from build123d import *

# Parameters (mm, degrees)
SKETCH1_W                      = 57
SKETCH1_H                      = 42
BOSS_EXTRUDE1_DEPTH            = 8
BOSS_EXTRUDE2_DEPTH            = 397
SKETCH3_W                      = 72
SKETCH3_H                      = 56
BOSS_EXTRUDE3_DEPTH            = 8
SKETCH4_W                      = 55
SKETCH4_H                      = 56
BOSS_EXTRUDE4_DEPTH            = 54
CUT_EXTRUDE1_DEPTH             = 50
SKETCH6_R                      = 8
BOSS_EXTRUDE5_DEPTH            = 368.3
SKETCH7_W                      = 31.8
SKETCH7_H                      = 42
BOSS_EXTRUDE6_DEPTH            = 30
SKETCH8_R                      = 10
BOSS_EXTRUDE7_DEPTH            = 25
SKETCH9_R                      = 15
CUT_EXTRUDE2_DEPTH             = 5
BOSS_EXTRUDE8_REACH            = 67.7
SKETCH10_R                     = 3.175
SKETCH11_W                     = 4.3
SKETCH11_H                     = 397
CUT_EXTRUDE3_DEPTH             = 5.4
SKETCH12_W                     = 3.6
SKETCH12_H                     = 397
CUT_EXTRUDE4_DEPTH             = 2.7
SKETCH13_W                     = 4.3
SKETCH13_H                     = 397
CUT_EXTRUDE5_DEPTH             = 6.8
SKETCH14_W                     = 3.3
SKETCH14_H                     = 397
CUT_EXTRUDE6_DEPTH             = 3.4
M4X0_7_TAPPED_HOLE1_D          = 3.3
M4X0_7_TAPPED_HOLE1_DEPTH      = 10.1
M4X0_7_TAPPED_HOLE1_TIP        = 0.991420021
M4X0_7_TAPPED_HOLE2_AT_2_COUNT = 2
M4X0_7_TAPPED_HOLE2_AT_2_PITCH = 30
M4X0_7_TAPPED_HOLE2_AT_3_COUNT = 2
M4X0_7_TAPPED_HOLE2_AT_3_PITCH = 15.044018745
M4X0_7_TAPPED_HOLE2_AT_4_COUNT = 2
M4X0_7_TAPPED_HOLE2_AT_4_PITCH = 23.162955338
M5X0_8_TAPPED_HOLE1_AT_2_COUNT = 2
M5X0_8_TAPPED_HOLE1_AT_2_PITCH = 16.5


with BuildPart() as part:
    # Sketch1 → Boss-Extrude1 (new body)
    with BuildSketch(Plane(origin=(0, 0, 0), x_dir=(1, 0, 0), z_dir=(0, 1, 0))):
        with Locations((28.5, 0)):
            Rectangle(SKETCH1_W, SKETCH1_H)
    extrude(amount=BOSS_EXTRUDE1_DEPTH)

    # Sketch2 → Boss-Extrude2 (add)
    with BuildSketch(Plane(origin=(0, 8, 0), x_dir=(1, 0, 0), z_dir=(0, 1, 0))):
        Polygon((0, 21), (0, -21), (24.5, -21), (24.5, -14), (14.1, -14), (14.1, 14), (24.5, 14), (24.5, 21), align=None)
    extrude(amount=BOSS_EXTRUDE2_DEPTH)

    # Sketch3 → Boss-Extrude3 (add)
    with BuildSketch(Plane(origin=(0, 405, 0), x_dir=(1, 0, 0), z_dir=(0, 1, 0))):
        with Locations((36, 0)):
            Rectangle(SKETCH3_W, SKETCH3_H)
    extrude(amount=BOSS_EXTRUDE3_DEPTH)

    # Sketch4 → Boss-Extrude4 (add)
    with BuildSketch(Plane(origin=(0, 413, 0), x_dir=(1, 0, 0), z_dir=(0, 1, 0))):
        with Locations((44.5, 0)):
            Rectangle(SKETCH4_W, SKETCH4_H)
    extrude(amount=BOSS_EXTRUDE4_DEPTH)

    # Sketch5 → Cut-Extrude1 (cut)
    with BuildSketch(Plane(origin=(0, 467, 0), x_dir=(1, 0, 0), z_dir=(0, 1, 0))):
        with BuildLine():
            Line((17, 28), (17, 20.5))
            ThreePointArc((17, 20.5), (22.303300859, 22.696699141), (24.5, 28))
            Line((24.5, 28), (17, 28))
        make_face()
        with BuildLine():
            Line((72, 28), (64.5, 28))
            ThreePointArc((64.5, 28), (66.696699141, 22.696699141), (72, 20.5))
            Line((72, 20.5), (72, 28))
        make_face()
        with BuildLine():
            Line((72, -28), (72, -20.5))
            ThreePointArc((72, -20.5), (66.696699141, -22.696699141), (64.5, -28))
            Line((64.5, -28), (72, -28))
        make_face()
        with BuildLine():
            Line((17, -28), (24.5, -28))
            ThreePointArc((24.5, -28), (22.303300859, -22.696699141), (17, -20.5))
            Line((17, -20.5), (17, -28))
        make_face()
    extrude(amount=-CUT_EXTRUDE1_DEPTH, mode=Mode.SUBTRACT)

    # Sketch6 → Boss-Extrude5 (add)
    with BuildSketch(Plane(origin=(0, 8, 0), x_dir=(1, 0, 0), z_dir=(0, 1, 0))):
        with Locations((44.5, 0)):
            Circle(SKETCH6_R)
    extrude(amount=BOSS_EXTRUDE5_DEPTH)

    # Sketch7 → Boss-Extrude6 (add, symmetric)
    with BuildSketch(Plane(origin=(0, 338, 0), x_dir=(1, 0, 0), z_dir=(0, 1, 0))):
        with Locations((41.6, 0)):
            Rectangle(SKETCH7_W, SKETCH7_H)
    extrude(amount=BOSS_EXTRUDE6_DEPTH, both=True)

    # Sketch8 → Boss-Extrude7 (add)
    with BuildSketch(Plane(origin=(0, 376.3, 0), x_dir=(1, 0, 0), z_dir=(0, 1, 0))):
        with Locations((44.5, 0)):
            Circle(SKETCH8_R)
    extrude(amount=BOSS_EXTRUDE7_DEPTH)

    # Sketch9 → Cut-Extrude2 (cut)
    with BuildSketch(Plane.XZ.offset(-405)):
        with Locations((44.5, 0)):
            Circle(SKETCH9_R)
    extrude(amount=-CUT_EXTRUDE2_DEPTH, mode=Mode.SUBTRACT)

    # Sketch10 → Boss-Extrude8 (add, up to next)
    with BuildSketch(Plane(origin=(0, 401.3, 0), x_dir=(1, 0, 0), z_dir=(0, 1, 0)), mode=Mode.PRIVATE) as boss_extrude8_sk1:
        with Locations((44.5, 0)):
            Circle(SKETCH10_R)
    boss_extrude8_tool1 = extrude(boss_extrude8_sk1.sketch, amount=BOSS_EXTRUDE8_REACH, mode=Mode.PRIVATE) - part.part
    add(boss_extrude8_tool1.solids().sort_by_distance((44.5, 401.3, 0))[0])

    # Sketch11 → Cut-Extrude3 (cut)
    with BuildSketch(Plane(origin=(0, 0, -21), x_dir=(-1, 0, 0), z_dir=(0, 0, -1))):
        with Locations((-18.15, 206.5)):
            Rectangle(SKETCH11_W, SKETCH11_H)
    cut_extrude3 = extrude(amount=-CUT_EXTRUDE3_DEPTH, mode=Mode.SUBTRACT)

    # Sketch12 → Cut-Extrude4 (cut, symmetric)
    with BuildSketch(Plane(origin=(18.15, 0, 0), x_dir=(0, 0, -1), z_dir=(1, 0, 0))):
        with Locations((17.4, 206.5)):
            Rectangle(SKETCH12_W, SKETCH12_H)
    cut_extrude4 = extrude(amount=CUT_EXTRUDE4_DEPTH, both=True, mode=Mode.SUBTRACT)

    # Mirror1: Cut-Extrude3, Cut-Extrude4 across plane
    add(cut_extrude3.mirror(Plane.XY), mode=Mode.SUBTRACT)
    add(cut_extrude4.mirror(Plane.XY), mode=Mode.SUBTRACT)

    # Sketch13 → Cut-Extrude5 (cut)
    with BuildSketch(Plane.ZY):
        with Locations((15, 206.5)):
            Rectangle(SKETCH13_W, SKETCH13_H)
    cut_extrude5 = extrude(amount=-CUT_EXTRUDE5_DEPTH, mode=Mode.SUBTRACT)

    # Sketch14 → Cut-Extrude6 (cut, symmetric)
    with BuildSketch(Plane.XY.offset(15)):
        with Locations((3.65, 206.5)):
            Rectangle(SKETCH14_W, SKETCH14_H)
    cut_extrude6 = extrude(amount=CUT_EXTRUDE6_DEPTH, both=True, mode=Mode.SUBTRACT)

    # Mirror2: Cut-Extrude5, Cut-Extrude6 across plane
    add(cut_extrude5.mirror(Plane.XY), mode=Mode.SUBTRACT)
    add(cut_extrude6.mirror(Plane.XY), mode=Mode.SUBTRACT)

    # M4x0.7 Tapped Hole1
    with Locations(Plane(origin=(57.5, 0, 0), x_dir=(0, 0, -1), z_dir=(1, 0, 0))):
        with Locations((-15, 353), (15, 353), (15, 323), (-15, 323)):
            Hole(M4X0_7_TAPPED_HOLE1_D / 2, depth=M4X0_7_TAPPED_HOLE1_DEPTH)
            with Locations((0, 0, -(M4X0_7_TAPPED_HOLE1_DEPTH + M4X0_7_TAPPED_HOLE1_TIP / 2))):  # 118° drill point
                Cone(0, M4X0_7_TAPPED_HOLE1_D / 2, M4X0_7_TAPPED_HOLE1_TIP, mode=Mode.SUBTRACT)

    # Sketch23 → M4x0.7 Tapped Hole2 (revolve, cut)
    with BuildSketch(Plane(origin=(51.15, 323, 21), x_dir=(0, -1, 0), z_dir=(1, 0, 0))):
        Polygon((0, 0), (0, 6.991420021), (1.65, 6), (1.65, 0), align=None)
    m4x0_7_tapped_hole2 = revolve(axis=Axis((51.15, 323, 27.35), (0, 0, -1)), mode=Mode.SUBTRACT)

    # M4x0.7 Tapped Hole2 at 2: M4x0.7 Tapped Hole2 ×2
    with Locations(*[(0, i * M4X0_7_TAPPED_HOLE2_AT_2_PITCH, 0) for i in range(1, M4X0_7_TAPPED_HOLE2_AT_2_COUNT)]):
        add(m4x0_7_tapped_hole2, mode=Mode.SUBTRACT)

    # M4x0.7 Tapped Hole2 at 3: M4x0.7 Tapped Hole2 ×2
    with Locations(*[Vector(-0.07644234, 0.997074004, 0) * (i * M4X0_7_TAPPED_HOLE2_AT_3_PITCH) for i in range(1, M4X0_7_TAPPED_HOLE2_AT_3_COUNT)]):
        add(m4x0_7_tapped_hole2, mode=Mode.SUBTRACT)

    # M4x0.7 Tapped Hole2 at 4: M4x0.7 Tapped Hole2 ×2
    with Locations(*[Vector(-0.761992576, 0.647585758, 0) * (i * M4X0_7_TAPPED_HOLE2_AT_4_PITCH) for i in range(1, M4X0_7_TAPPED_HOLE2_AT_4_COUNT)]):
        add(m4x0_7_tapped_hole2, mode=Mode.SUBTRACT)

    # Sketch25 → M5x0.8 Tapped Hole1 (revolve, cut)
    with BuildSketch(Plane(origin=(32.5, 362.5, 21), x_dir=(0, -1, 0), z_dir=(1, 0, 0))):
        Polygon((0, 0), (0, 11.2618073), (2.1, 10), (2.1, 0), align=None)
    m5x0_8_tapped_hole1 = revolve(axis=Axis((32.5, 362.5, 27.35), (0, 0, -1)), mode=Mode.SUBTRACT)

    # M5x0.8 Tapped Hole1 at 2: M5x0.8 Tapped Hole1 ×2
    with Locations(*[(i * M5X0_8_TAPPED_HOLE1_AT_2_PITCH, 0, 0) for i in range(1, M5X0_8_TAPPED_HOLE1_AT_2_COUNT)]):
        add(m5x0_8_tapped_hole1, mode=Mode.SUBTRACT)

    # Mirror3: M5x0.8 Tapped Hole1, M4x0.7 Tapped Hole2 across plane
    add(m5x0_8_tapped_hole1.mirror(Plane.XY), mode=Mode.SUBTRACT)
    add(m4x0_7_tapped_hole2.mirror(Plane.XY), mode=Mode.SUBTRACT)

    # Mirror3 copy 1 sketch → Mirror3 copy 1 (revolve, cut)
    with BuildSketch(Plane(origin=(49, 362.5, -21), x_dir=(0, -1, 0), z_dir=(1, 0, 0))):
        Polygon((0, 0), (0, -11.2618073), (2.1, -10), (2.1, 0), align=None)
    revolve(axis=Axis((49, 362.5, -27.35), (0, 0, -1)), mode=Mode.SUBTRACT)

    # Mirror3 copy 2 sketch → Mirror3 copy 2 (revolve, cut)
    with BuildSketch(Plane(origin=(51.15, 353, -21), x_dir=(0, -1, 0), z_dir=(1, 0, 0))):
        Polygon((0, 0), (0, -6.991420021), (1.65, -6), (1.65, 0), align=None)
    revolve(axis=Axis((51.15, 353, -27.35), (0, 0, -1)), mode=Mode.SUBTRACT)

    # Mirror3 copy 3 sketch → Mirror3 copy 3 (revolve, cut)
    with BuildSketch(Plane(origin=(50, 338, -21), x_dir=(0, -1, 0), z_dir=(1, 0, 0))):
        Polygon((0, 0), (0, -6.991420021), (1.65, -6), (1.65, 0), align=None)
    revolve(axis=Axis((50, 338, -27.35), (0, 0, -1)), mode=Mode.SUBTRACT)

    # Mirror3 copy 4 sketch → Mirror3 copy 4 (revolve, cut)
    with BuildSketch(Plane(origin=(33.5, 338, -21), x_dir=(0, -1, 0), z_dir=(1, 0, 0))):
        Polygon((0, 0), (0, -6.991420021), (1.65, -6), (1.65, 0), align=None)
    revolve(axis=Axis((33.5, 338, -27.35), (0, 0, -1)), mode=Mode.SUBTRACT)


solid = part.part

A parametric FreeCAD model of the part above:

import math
import FreeCAD as App
import Part
import Sketcher
from FreeCAD import Vector
Q = App.Units.Quantity


def add_polygon(sketch, points):
    """Adds a closed chain of lines whose ends are joined by coincident constraints."""
    first, n = sketch.GeometryCount, len(points)
    for a, b in zip(points, points[1:] + points[:1]):
        sketch.addGeometry(Part.LineSegment(App.Vector(*a, 0), App.Vector(*b, 0)), False)
    for i in range(n):
        sketch.addConstraint(Sketcher.Constraint("Coincident", first + i, 2, first + (i + 1) % n, 1))

doc = App.newDocument("Part")
body = doc.addObject("PartDesign::Body", "Body")

# Sketch on XZ plane
sketch1 = body.newObject("Sketcher::SketchObject", "Sketch")
sketch1.AttachmentSupport = (doc.getObject("XZ_Plane"), [""])
sketch1.MapMode = "FlatFace"
add_polygon(sketch1, [(0, -21), (0, 21), (57, 21), (57, -21)])  # lines 0-3
sketch1.addConstraint(Sketcher.Constraint("Vertical", 0))
sketch1.addConstraint(Sketcher.Constraint("Horizontal", 1))
sketch1.addConstraint(Sketcher.Constraint("Vertical", 2))
sketch1.addConstraint(Sketcher.Constraint("Horizontal", 3))
sketch1.addConstraint(Sketcher.Constraint("Symmetric", 0, 2, 3, 2, -1, 1))
sketch1.addConstraint(Sketcher.Constraint("DistanceX", 1, 1, 1, 2, Q("57 mm")))
sketch1.addConstraint(Sketcher.Constraint("DistanceY", 0, 1, 0, 2, Q("42 mm")))
pad1 = body.newObject("PartDesign::Pad", "Pad")
pad1.Profile = sketch1
pad1.Length = 8
pad1.Reversed = True

# Sketch on XZ plane
sketch2 = body.newObject("Sketcher::SketchObject", "Sketch001")
sketch2.AttachmentSupport = (doc.getObject("XZ_Plane"), [""])
sketch2.MapMode = "FlatFace"
sketch2.AttachmentOffset = App.Placement(Vector(0, 0, -8), App.Rotation())
add_polygon(sketch2, [(0, -21), (0, 21), (24.5, 21), (24.5, 14), (14.1, 14), (14.1, -14), (24.5, -14), (24.5, -21)])  # lines 0-7
sketch2.addConstraint(Sketcher.Constraint("Vertical", 0))
sketch2.addConstraint(Sketcher.Constraint("Horizontal", 1))
sketch2.addConstraint(Sketcher.Constraint("Vertical", 2))
sketch2.addConstraint(Sketcher.Constraint("Horizontal", 3))
sketch2.addConstraint(Sketcher.Constraint("Vertical", 4))
sketch2.addConstraint(Sketcher.Constraint("Horizontal", 5))
sketch2.addConstraint(Sketcher.Constraint("Vertical", 6))
sketch2.addConstraint(Sketcher.Constraint("Horizontal", 7))
sketch2.addConstraint(Sketcher.Constraint("Symmetric", 0, 2, 7, 2, -1, 1))
sketch2.addConstraint(Sketcher.Constraint("Symmetric", 2, 2, 5, 2, -1))
sketch2.addConstraint(Sketcher.Constraint("DistanceY", 0, 1, 0, 2, Q("42 mm")))
sketch2.addConstraint(Sketcher.Constraint("DistanceY", 2, 2, 2, 1, Q("7 mm")))
sketch2.addConstraint(Sketcher.Constraint("DistanceX", 1, 1, 1, 2, Q("24.5 mm")))
sketch2.addConstraint(Sketcher.Constraint("DistanceX", 3, 2, 3, 1, Q("10.4 mm")))
pad2 = body.newObject("PartDesign::Pad", "Pad001")
pad2.Profile = sketch2
pad2.Length = 397
pad2.Reversed = True

# Sketch on XZ plane
sketch3 = body.newObject("Sketcher::SketchObject", "Sketch002")
sketch3.AttachmentSupport = (doc.getObject("XZ_Plane"), [""])
sketch3.MapMode = "FlatFace"
sketch3.AttachmentOffset = App.Placement(Vector(0, 0, -405), App.Rotation())
add_polygon(sketch3, [(0, -28), (0, 28), (72, 28), (72, -28)])  # lines 0-3
sketch3.addConstraint(Sketcher.Constraint("Vertical", 0))
sketch3.addConstraint(Sketcher.Constraint("Horizontal", 1))
sketch3.addConstraint(Sketcher.Constraint("Vertical", 2))
sketch3.addConstraint(Sketcher.Constraint("Horizontal", 3))
sketch3.addConstraint(Sketcher.Constraint("Symmetric", 0, 2, 3, 2, -1, 1))
sketch3.addConstraint(Sketcher.Constraint("DistanceX", 1, 1, 1, 2, Q("72 mm")))
sketch3.addConstraint(Sketcher.Constraint("DistanceY", 0, 1, 0, 2, Q("56 mm")))
pad3 = body.newObject("PartDesign::Pad", "Pad002")
pad3.Profile = sketch3
pad3.Length = 8
pad3.Reversed = True

# Sketch on XZ plane
sketch4 = body.newObject("Sketcher::SketchObject", "Sketch003")
sketch4.AttachmentSupport = (doc.getObject("XZ_Plane"), [""])
sketch4.MapMode = "FlatFace"
sketch4.AttachmentOffset = App.Placement(Vector(0, 0, -413), App.Rotation())
add_polygon(sketch4, [(17, -28), (17, 28), (72, 28), (72, -28)])  # lines 0-3
sketch4.addConstraint(Sketcher.Constraint("Vertical", 0))
sketch4.addConstraint(Sketcher.Constraint("Horizontal", 1))
sketch4.addConstraint(Sketcher.Constraint("Vertical", 2))
sketch4.addConstraint(Sketcher.Constraint("Horizontal", 3))
sketch4.addConstraint(Sketcher.Constraint("DistanceX", 1, 1, 1, 2, Q("55 mm")))
sketch4.addConstraint(Sketcher.Constraint("DistanceY", 0, 1, 0, 2, Q("56 mm")))
sketch4.addConstraint(Sketcher.Constraint("DistanceX", -1, 1, 0, 2, Q("17 mm")))
sketch4.addConstraint(Sketcher.Constraint("DistanceY", -1, 1, 0, 2, Q("28 mm")))
pad4 = body.newObject("PartDesign::Pad", "Pad003")
pad4.Profile = sketch4
pad4.Length = 54
pad4.Reversed = True

# Sketch on XZ plane
sketch5 = body.newObject("Sketcher::SketchObject", "Sketch004")
sketch5.AttachmentSupport = (doc.getObject("XZ_Plane"), [""])
sketch5.MapMode = "FlatFace"
sketch5.AttachmentOffset = App.Placement(Vector(0, 0, -467), App.Rotation())
sketch5.addGeometry(Part.LineSegment(Vector(17, -28, 0), Vector(17, -20.5, 0)), False)
sketch5.addGeometry(Part.ArcOfCircle(Part.Circle(Vector(17, -28, 0), Vector(0, 0, 1), 7.5), math.radians(0), math.radians(90)), False)
sketch5.addGeometry(Part.LineSegment(Vector(24.5, -28, 0), Vector(17, -28, 0)), False)
sketch5.addGeometry(Part.LineSegment(Vector(72, -28, 0), Vector(64.5, -28, 0)), False)
sketch5.addGeometry(Part.ArcOfCircle(Part.Circle(Vector(72, -28, 0), Vector(0, 0, 1), 7.5), math.radians(90), math.radians(180)), False)
sketch5.addGeometry(Part.LineSegment(Vector(72, -20.5, 0), Vector(72, -28, 0)), False)
sketch5.addGeometry(Part.LineSegment(Vector(72, 28, 0), Vector(72, 20.5, 0)), False)
sketch5.addGeometry(Part.ArcOfCircle(Part.Circle(Vector(72, 28, 0), Vector(0, 0, 1), 7.5), math.radians(180), math.radians(270)), False)
sketch5.addGeometry(Part.LineSegment(Vector(64.5, 28, 0), Vector(72, 28, 0)), False)
sketch5.addGeometry(Part.LineSegment(Vector(17, 28, 0), Vector(24.5, 28, 0)), False)
sketch5.addGeometry(Part.ArcOfCircle(Part.Circle(Vector(17, 28, 0), Vector(0, 0, 1), 7.5), math.radians(-90), math.radians(0)), False)
sketch5.addGeometry(Part.LineSegment(Vector(17, 20.5, 0), Vector(17, 28, 0)), False)
sketch5.addConstraint(Sketcher.Constraint("Coincident", 0, 2, 1, 2))
sketch5.addConstraint(Sketcher.Constraint("Coincident", 1, 1, 2, 1))
sketch5.addConstraint(Sketcher.Constraint("Coincident", 2, 2, 0, 1))
sketch5.addConstraint(Sketcher.Constraint("Coincident", 3, 2, 4, 2))
sketch5.addConstraint(Sketcher.Constraint("Coincident", 4, 1, 5, 1))
sketch5.addConstraint(Sketcher.Constraint("Coincident", 5, 2, 3, 1))
sketch5.addConstraint(Sketcher.Constraint("Coincident", 6, 2, 7, 2))
sketch5.addConstraint(Sketcher.Constraint("Coincident", 7, 1, 8, 1))
sketch5.addConstraint(Sketcher.Constraint("Coincident", 8, 2, 6, 1))
sketch5.addConstraint(Sketcher.Constraint("Coincident", 9, 2, 10, 2))
sketch5.addConstraint(Sketcher.Constraint("Coincident", 10, 1, 11, 1))
sketch5.addConstraint(Sketcher.Constraint("Coincident", 11, 2, 9, 1))
sketch5.addConstraint(Sketcher.Constraint("Vertical", 0))
sketch5.addConstraint(Sketcher.Constraint("Horizontal", 2))
sketch5.addConstraint(Sketcher.Constraint("Horizontal", 3))
sketch5.addConstraint(Sketcher.Constraint("Vertical", 5))
sketch5.addConstraint(Sketcher.Constraint("Vertical", 6))
sketch5.addConstraint(Sketcher.Constraint("Horizontal", 8))
sketch5.addConstraint(Sketcher.Constraint("Horizontal", 9))
sketch5.addConstraint(Sketcher.Constraint("Vertical", 11))
sketch5.addConstraint(Sketcher.Constraint("Coincident", 2, 2, 1, 3))
sketch5.addConstraint(Sketcher.Constraint("Coincident", 5, 2, 4, 3))
sketch5.addConstraint(Sketcher.Constraint("Coincident", 8, 2, 7, 3))
sketch5.addConstraint(Sketcher.Constraint("Coincident", 11, 2, 10, 3))
sketch5.addConstraint(Sketcher.Constraint("Equal", 1, 4))
sketch5.addConstraint(Sketcher.Constraint("Equal", 4, 7))
sketch5.addConstraint(Sketcher.Constraint("Equal", 7, 10))
sketch5.addConstraint(Sketcher.Constraint("Symmetric", 4, 3, 7, 3, -1))
sketch5.addConstraint(Sketcher.Constraint("Symmetric", 1, 3, 10, 3, -1))
sketch5.addConstraint(Sketcher.Constraint("Horizontal", 1, 3, 4, 3))
sketch5.addConstraint(Sketcher.Constraint("Radius", 1, Q("7.5 mm")))
sketch5.addConstraint(Sketcher.Constraint("DistanceX", -1, 1, 1, 3, Q("17 mm")))
sketch5.addConstraint(Sketcher.Constraint("DistanceY", 1, 3, -1, 1, Q("28 mm")))
sketch5.addConstraint(Sketcher.Constraint("DistanceX", -1, 1, 4, 3, Q("72 mm")))
pocket1 = body.newObject("PartDesign::Pocket", "Pocket")
pocket1.Profile = sketch5
pocket1.Length = 50
pocket1.Reversed = True

# Sketch on XZ plane
sketch6 = body.newObject("Sketcher::SketchObject", "Sketch005")
sketch6.AttachmentSupport = (doc.getObject("XZ_Plane"), [""])
sketch6.MapMode = "FlatFace"
sketch6.AttachmentOffset = App.Placement(Vector(0, 0, -8), App.Rotation())
sketch6.addGeometry(Part.Circle(Vector(44.5, 0, 0), Vector(0, 0, 1), 8), False)
sketch6.addConstraint(Sketcher.Constraint("PointOnObject", 0, 3, -1))
sketch6.addConstraint(Sketcher.Constraint("Diameter", 0, Q("16 mm")))
sketch6.addConstraint(Sketcher.Constraint("DistanceX", -1, 1, 0, 3, Q("44.5 mm")))
pad5 = body.newObject("PartDesign::Pad", "Pad004")
pad5.Profile = sketch6
pad5.Length = 368.3
pad5.Reversed = True

# Sketch on XZ plane
sketch7 = body.newObject("Sketcher::SketchObject", "Sketch006")
sketch7.AttachmentSupport = (doc.getObject("XZ_Plane"), [""])
sketch7.MapMode = "FlatFace"
sketch7.AttachmentOffset = App.Placement(Vector(0, 0, -338), App.Rotation())
add_polygon(sketch7, [(25.7, -21), (25.7, 21), (57.5, 21), (57.5, -21)])  # lines 0-3
sketch7.addConstraint(Sketcher.Constraint("Vertical", 0))
sketch7.addConstraint(Sketcher.Constraint("Horizontal", 1))
sketch7.addConstraint(Sketcher.Constraint("Vertical", 2))
sketch7.addConstraint(Sketcher.Constraint("Horizontal", 3))
sketch7.addConstraint(Sketcher.Constraint("DistanceY", 0, 1, 0, 2, Q("42 mm")))
sketch7.addConstraint(Sketcher.Constraint("DistanceX", 1, 1, 1, 2, Q("31.8 mm")))
sketch7.addConstraint(Sketcher.Constraint("DistanceY", -1, 1, 0, 2, Q("21 mm")))
sketch7.addConstraint(Sketcher.Constraint("DistanceX", -1, 1, 0, 2, Q("25.7 mm")))
pad6 = body.newObject("PartDesign::Pad", "Pad005")
pad6.Profile = sketch7
pad6.Length = 60
pad6.Midplane = True

# Sketch on XZ plane
sketch8 = body.newObject("Sketcher::SketchObject", "Sketch007")
sketch8.AttachmentSupport = (doc.getObject("XZ_Plane"), [""])
sketch8.MapMode = "FlatFace"
sketch8.AttachmentOffset = App.Placement(Vector(0, 0, -376.3), App.Rotation())
sketch8.addGeometry(Part.Circle(Vector(44.5, 0, 0), Vector(0, 0, 1), 10), False)
sketch8.addConstraint(Sketcher.Constraint("PointOnObject", 0, 3, -1))
sketch8.addConstraint(Sketcher.Constraint("Diameter", 0, Q("20 mm")))
sketch8.addConstraint(Sketcher.Constraint("DistanceX", -1, 1, 0, 3, Q("44.5 mm")))
pad7 = body.newObject("PartDesign::Pad", "Pad006")
pad7.Profile = sketch8
pad7.Length = 25
pad7.Reversed = True

# Sketch on XZ plane
sketch9 = body.newObject("Sketcher::SketchObject", "Sketch008")
sketch9.AttachmentSupport = (doc.getObject("XZ_Plane"), [""])
sketch9.MapMode = "FlatFace"
sketch9.AttachmentOffset = App.Placement(Vector(0, 0, -405), App.Rotation())
sketch9.addGeometry(Part.Circle(Vector(44.5, 0, 0), Vector(0, 0, 1), 15), False)
sketch9.addConstraint(Sketcher.Constraint("PointOnObject", 0, 3, -1))
sketch9.addConstraint(Sketcher.Constraint("Diameter", 0, Q("30 mm")))
sketch9.addConstraint(Sketcher.Constraint("DistanceX", -1, 1, 0, 3, Q("44.5 mm")))
pocket2 = body.newObject("PartDesign::Pocket", "Pocket001")
pocket2.Profile = sketch9
pocket2.Length = 5

# Sketch on XZ plane
sketch10 = body.newObject("Sketcher::SketchObject", "Sketch009")
sketch10.AttachmentSupport = (doc.getObject("XZ_Plane"), [""])
sketch10.MapMode = "FlatFace"
sketch10.AttachmentOffset = App.Placement(Vector(0, 0, -401.3), App.Rotation())
sketch10.addGeometry(Part.Circle(Vector(44.5, 0, 0), Vector(0, 0, 1), 3.175), False)
sketch10.addConstraint(Sketcher.Constraint("PointOnObject", 0, 3, -1))
sketch10.addConstraint(Sketcher.Constraint("Diameter", 0, Q("6.35 mm")))
sketch10.addConstraint(Sketcher.Constraint("DistanceX", -1, 1, 0, 3, Q("44.5 mm")))
pad8 = body.newObject("PartDesign::Pad", "Pad007")
pad8.Profile = sketch10
pad8.Type = "UpToFirst"
pad8.Reversed = True

# Sketch on XY plane
sketch11 = body.newObject("Sketcher::SketchObject", "Sketch010")
sketch11.AttachmentSupport = (doc.getObject("XY_Plane"), [""])
sketch11.MapMode = "FlatFace"
sketch11.AttachmentOffset = App.Placement(Vector(0, 0, -21), App.Rotation())
add_polygon(sketch11, [(20.3, 405), (20.3, 8), (16, 8), (16, 405)])  # lines 0-3
sketch11.addConstraint(Sketcher.Constraint("Vertical", 0))
sketch11.addConstraint(Sketcher.Constraint("Horizontal", 1))
sketch11.addConstraint(Sketcher.Constraint("Vertical", 2))
sketch11.addConstraint(Sketcher.Constraint("Horizontal", 3))
sketch11.addConstraint(Sketcher.Constraint("DistanceY", 0, 2, 0, 1, Q("397 mm")))
sketch11.addConstraint(Sketcher.Constraint("DistanceX", 1, 2, 1, 1, Q("4.3 mm")))
sketch11.addConstraint(Sketcher.Constraint("DistanceY", -1, 1, 0, 2, Q("8 mm")))
sketch11.addConstraint(Sketcher.Constraint("DistanceX", -1, 1, 1, 2, Q("16 mm")))
pocket3 = body.newObject("PartDesign::Pocket", "Pocket002")
pocket3.Profile = sketch11
pocket3.Length = 5.4
pocket3.Reversed = True

# Sketch on YZ plane
sketch12 = body.newObject("Sketcher::SketchObject", "Sketch011")
sketch12.AttachmentSupport = (doc.getObject("YZ_Plane"), [""])
sketch12.MapMode = "FlatFace"
sketch12.AttachmentOffset = App.Placement(Vector(0, 0, 18.15), App.Rotation())
add_polygon(sketch12, [(405, -15.6), (8, -15.6), (8, -19.2), (405, -19.2)])  # lines 0-3
sketch12.addConstraint(Sketcher.Constraint("Horizontal", 0))
sketch12.addConstraint(Sketcher.Constraint("Vertical", 1))
sketch12.addConstraint(Sketcher.Constraint("Horizontal", 2))
sketch12.addConstraint(Sketcher.Constraint("Vertical", 3))
sketch12.addConstraint(Sketcher.Constraint("DistanceX", 0, 2, 0, 1, Q("397 mm")))
sketch12.addConstraint(Sketcher.Constraint("DistanceY", 1, 2, 1, 1, Q("3.6 mm")))
sketch12.addConstraint(Sketcher.Constraint("DistanceX", -1, 1, 0, 2, Q("8 mm")))
sketch12.addConstraint(Sketcher.Constraint("DistanceY", 0, 2, -1, 1, Q("15.6 mm")))
pocket4 = body.newObject("PartDesign::Pocket", "Pocket003")
pocket4.Profile = sketch12
pocket4.Length = 5.4
pocket4.Midplane = True
doc.recompute()

mirrored = body.newObject("PartDesign::Mirrored", "Mirrored")
mirrored.Originals = [pocket3, pocket4]
mirrored.MirrorPlane = (doc.getObject("XY_Plane"), [""])
body.Tip = mirrored

# Sketch on YZ plane
sketch13 = body.newObject("Sketcher::SketchObject", "Sketch012")
sketch13.AttachmentSupport = (doc.getObject("YZ_Plane"), [""])
sketch13.MapMode = "FlatFace"
add_polygon(sketch13, [(405, 12.85), (8, 12.85), (8, 17.15), (405, 17.15)])  # lines 0-3
sketch13.addConstraint(Sketcher.Constraint("Horizontal", 0))
sketch13.addConstraint(Sketcher.Constraint("Vertical", 1))
sketch13.addConstraint(Sketcher.Constraint("Horizontal", 2))
sketch13.addConstraint(Sketcher.Constraint("Vertical", 3))
sketch13.addConstraint(Sketcher.Constraint("DistanceX", 0, 2, 0, 1, Q("397 mm")))
sketch13.addConstraint(Sketcher.Constraint("DistanceY", 1, 1, 1, 2, Q("4.3 mm")))
sketch13.addConstraint(Sketcher.Constraint("DistanceX", -1, 1, 0, 2, Q("8 mm")))
sketch13.addConstraint(Sketcher.Constraint("DistanceY", -1, 1, 0, 2, Q("12.85 mm")))
pocket5 = body.newObject("PartDesign::Pocket", "Pocket004")
pocket5.Profile = sketch13
pocket5.Length = 6.8
pocket5.Reversed = True

# Sketch on XY plane
sketch14 = body.newObject("Sketcher::SketchObject", "Sketch013")
sketch14.AttachmentSupport = (doc.getObject("XY_Plane"), [""])
sketch14.MapMode = "FlatFace"
sketch14.AttachmentOffset = App.Placement(Vector(0, 0, 15), App.Rotation())
add_polygon(sketch14, [(2, 405), (2, 8), (5.3, 8), (5.3, 405)])  # lines 0-3
sketch14.addConstraint(Sketcher.Constraint("Vertical", 0))
sketch14.addConstraint(Sketcher.Constraint("Horizontal", 1))
sketch14.addConstraint(Sketcher.Constraint("Vertical", 2))
sketch14.addConstraint(Sketcher.Constraint("Horizontal", 3))
sketch14.addConstraint(Sketcher.Constraint("DistanceY", 0, 2, 0, 1, Q("397 mm")))
sketch14.addConstraint(Sketcher.Constraint("DistanceX", 1, 1, 1, 2, Q("3.3 mm")))
sketch14.addConstraint(Sketcher.Constraint("DistanceX", -1, 1, 0, 2, Q("2 mm")))
sketch14.addConstraint(Sketcher.Constraint("DistanceY", -1, 1, 0, 2, Q("8 mm")))
pocket6 = body.newObject("PartDesign::Pocket", "Pocket005")
pocket6.Profile = sketch14
pocket6.Length = 6.8
pocket6.Midplane = True
doc.recompute()

mirrored2 = body.newObject("PartDesign::Mirrored", "Mirrored001")
mirrored2.Originals = [pocket5, pocket6]
mirrored2.MirrorPlane = (doc.getObject("XY_Plane"), [""])
body.Tip = mirrored2

# Sketch on YZ plane
sketch15 = body.newObject("Sketcher::SketchObject", "Sketch014")
sketch15.AttachmentSupport = (doc.getObject("YZ_Plane"), [""])
sketch15.MapMode = "FlatFace"
sketch15.AttachmentOffset = App.Placement(Vector(0, 0, 57.5), App.Rotation())
sketch15.addGeometry(Part.Circle(Vector(353, 15, 0), Vector(0, 0, 1), 1.65), False)
sketch15.addGeometry(Part.Circle(Vector(353, -15, 0), Vector(0, 0, 1), 1.65), False)
sketch15.addGeometry(Part.Circle(Vector(323, -15, 0), Vector(0, 0, 1), 1.65), False)
sketch15.addGeometry(Part.Circle(Vector(323, 15, 0), Vector(0, 0, 1), 1.65), False)
sketch15.addConstraint(Sketcher.Constraint("Equal", 0, 1))
sketch15.addConstraint(Sketcher.Constraint("Equal", 1, 2))
sketch15.addConstraint(Sketcher.Constraint("Equal", 2, 3))
sketch15.addConstraint(Sketcher.Constraint("Symmetric", 0, 3, 1, 3, -1))
sketch15.addConstraint(Sketcher.Constraint("Symmetric", 2, 3, 3, 3, -1))
sketch15.addConstraint(Sketcher.Constraint("Horizontal", 1, 3, 2, 3))
sketch15.addConstraint(Sketcher.Constraint("Diameter", 0, Q("3.3 mm")))
sketch15.addConstraint(Sketcher.Constraint("DistanceX", -1, 1, 0, 3, Q("353 mm")))
sketch15.addConstraint(Sketcher.Constraint("DistanceY", -1, 1, 0, 3, Q("15 mm")))
sketch15.addConstraint(Sketcher.Constraint("DistanceX", -1, 1, 2, 3, Q("323 mm")))
doc.recompute()
hole = body.newObject("PartDesign::Hole", "Hole")
hole.Profile = sketch15
hole.ThreadType = "None"
hole.Diameter = 3.3
hole.DepthType = "Dimension"
hole.Depth = 10.1
hole.DrillPoint = "Angled"
hole.DrillPointAngle = 118

# Sketch on YZ plane
sketch16 = body.newObject("Sketcher::SketchObject", "Sketch015")
sketch16.AttachmentSupport = (doc.getObject("YZ_Plane"), [""])
sketch16.MapMode = "FlatFace"
sketch16.AttachmentOffset = App.Placement(Vector(0, 0, 51.15), App.Rotation())
add_polygon(sketch16, [(323, 14.00858), (323, 21), (321.35, 21), (321.35, 15)])  # lines 0-3
sketch16.addGeometry(Part.LineSegment(Vector(323, 21, 0), Vector(323, 14.00858, 0)), True)  # axis
sketch16.addConstraint(Sketcher.Constraint("Vertical", 0))
sketch16.addConstraint(Sketcher.Constraint("Horizontal", 1))
sketch16.addConstraint(Sketcher.Constraint("Vertical", 2))
sketch16.addConstraint(Sketcher.Constraint("Vertical", 4))
sketch16.addConstraint(Sketcher.Constraint("Coincident", 4, 1, 0, 2))
sketch16.addConstraint(Sketcher.Constraint("Equal", 0, 4))
sketch16.addConstraint(Sketcher.Constraint("DistanceY", 2, 2, 2, 1, Q("6 mm")))
sketch16.addConstraint(Sketcher.Constraint("Angle", 3, Q("-31 deg")))
sketch16.addConstraint(Sketcher.Constraint("DistanceX", -1, 1, 0, 2, Q("323 mm")))
sketch16.addConstraint(Sketcher.Constraint("DistanceY", -1, 1, 0, 2, Q("21 mm")))
sketch16.addConstraint(Sketcher.Constraint("DistanceX", 1, 2, 1, 1, Q("1.65 mm")))
groove = body.newObject("PartDesign::Groove", "Groove")
groove.Profile = sketch16
groove.ReferenceAxis = (sketch16, ["Axis0"])
groove.Angle = 360
doc.recompute()

linearpattern = body.newObject("PartDesign::LinearPattern", "LinearPattern")
linearpattern.Originals = [groove]
linearpattern.Direction = (doc.getObject("Y_Axis"), [""])
linearpattern.Mode = "offset"
linearpattern.Offset = 30
linearpattern.Occurrences = 2
body.Tip = linearpattern
doc.recompute()

datumline = body.newObject("PartDesign::Line", "DatumLine")
datumline.Placement = App.Placement(Vector(0, 0, 0), App.Rotation(Vector(0, 0, 1), Vector(-0.07644234, 0.997074004, 0)))
linearpattern2 = body.newObject("PartDesign::LinearPattern", "LinearPattern001")
linearpattern2.Originals = [groove]
linearpattern2.Direction = (datumline, [""])
linearpattern2.Mode = "offset"
linearpattern2.Offset = 15.044019
linearpattern2.Occurrences = 2
body.Tip = linearpattern2
doc.recompute()

datumline2 = body.newObject("PartDesign::Line", "DatumLine001")
datumline2.Placement = App.Placement(Vector(0, 0, 0), App.Rotation(Vector(0, 0, 1), Vector(-0.761992576, 0.647585758, 0)))
linearpattern3 = body.newObject("PartDesign::LinearPattern", "LinearPattern002")
linearpattern3.Originals = [groove]
linearpattern3.Direction = (datumline2, [""])
linearpattern3.Mode = "offset"
linearpattern3.Offset = 23.162955
linearpattern3.Occurrences = 2
body.Tip = linearpattern3

# Sketch on YZ plane
sketch17 = body.newObject("Sketcher::SketchObject", "Sketch016")
sketch17.AttachmentSupport = (doc.getObject("YZ_Plane"), [""])
sketch17.MapMode = "FlatFace"
sketch17.AttachmentOffset = App.Placement(Vector(0, 0, 32.5), App.Rotation())
add_polygon(sketch17, [(362.5, 9.738193), (362.5, 21), (360.4, 21), (360.4, 11)])  # lines 0-3
sketch17.addGeometry(Part.LineSegment(Vector(362.5, 21, 0), Vector(362.5, 9.738193, 0)), True)  # axis
sketch17.addConstraint(Sketcher.Constraint("Vertical", 0))
sketch17.addConstraint(Sketcher.Constraint("Horizontal", 1))
sketch17.addConstraint(Sketcher.Constraint("Vertical", 2))
sketch17.addConstraint(Sketcher.Constraint("Vertical", 4))
sketch17.addConstraint(Sketcher.Constraint("Coincident", 4, 1, 0, 2))
sketch17.addConstraint(Sketcher.Constraint("Equal", 0, 4))
sketch17.addConstraint(Sketcher.Constraint("DistanceY", 2, 2, 2, 1, Q("10 mm")))
sketch17.addConstraint(Sketcher.Constraint("Angle", 3, Q("-31 deg")))
sketch17.addConstraint(Sketcher.Constraint("DistanceX", 1, 2, 1, 1, Q("2.1 mm")))
sketch17.addConstraint(Sketcher.Constraint("DistanceY", -1, 1, 0, 2, Q("21 mm")))
sketch17.addConstraint(Sketcher.Constraint("DistanceX", -1, 1, 0, 2, Q("362.5 mm")))
groove2 = body.newObject("PartDesign::Groove", "Groove001")
groove2.Profile = sketch17
groove2.ReferenceAxis = (sketch17, ["Axis0"])
groove2.Angle = 360
doc.recompute()

linearpattern4 = body.newObject("PartDesign::LinearPattern", "LinearPattern003")
linearpattern4.Originals = [groove2]
linearpattern4.Direction = (doc.getObject("X_Axis"), [""])
linearpattern4.Mode = "offset"
linearpattern4.Offset = 16.5
linearpattern4.Occurrences = 2
body.Tip = linearpattern4
doc.recompute()

mirrored3 = body.newObject("PartDesign::Mirrored", "Mirrored002")
mirrored3.Originals = [groove2, groove]
mirrored3.MirrorPlane = (doc.getObject("XY_Plane"), [""])
body.Tip = mirrored3

# Sketch on YZ plane
sketch18 = body.newObject("Sketcher::SketchObject", "Sketch017")
sketch18.AttachmentSupport = (doc.getObject("YZ_Plane"), [""])
sketch18.MapMode = "FlatFace"
sketch18.AttachmentOffset = App.Placement(Vector(0, 0, 49), App.Rotation())
add_polygon(sketch18, [(362.5, -21), (362.5, -9.738193), (360.4, -11), (360.4, -21)])  # lines 0-3
sketch18.addGeometry(Part.LineSegment(Vector(362.5, -9.738193, 0), Vector(362.5, -21, 0)), True)  # axis
sketch18.addConstraint(Sketcher.Constraint("Vertical", 0))
sketch18.addConstraint(Sketcher.Constraint("Vertical", 2))
sketch18.addConstraint(Sketcher.Constraint("Horizontal", 3))
sketch18.addConstraint(Sketcher.Constraint("Vertical", 4))
sketch18.addConstraint(Sketcher.Constraint("Coincident", 4, 1, 0, 2))
sketch18.addConstraint(Sketcher.Constraint("Horizontal", 2, 2, 4, 2))
sketch18.addConstraint(Sketcher.Constraint("DistanceY", 2, 2, 2, 1, Q("10 mm")))
sketch18.addConstraint(Sketcher.Constraint("Angle", 1, Q("-149 deg")))
sketch18.addConstraint(Sketcher.Constraint("DistanceX", 3, 1, 3, 2, Q("2.1 mm")))
sketch18.addConstraint(Sketcher.Constraint("DistanceY", 1, 2, -1, 1, Q("11 mm")))
sketch18.addConstraint(Sketcher.Constraint("DistanceX", -1, 1, 0, 2, Q("362.5 mm")))
groove3 = body.newObject("PartDesign::Groove", "Groove002")
groove3.Profile = sketch18
groove3.ReferenceAxis = (sketch18, ["Axis0"])
groove3.Angle = 360

# Sketch on YZ plane
sketch19 = body.newObject("Sketcher::SketchObject", "Sketch018")
sketch19.AttachmentSupport = (doc.getObject("YZ_Plane"), [""])
sketch19.MapMode = "FlatFace"
sketch19.AttachmentOffset = App.Placement(Vector(0, 0, 51.15), App.Rotation())
add_polygon(sketch19, [(353, -21), (353, -14.00858), (351.35, -15), (351.35, -21)])  # lines 0-3
sketch19.addGeometry(Part.LineSegment(Vector(353, -14.00858, 0), Vector(353, -21, 0)), True)  # axis
sketch19.addConstraint(Sketcher.Constraint("Vertical", 0))
sketch19.addConstraint(Sketcher.Constraint("Vertical", 2))
sketch19.addConstraint(Sketcher.Constraint("Horizontal", 3))
sketch19.addConstraint(Sketcher.Constraint("Vertical", 4))
sketch19.addConstraint(Sketcher.Constraint("Coincident", 4, 1, 0, 2))
sketch19.addConstraint(Sketcher.Constraint("Horizontal", 2, 2, 4, 2))
sketch19.addConstraint(Sketcher.Constraint("DistanceY", 2, 2, 2, 1, Q("6 mm")))
sketch19.addConstraint(Sketcher.Constraint("Angle", 1, Q("-149 deg")))
sketch19.addConstraint(Sketcher.Constraint("DistanceX", -1, 1, 0, 2, Q("353 mm")))
sketch19.addConstraint(Sketcher.Constraint("DistanceY", 1, 2, -1, 1, Q("15 mm")))
sketch19.addConstraint(Sketcher.Constraint("DistanceX", 3, 1, 3, 2, Q("1.65 mm")))
groove4 = body.newObject("PartDesign::Groove", "Groove003")
groove4.Profile = sketch19
groove4.ReferenceAxis = (sketch19, ["Axis0"])
groove4.Angle = 360

# Sketch on YZ plane
sketch20 = body.newObject("Sketcher::SketchObject", "Sketch019")
sketch20.AttachmentSupport = (doc.getObject("YZ_Plane"), [""])
sketch20.MapMode = "FlatFace"
sketch20.AttachmentOffset = App.Placement(Vector(0, 0, 50), App.Rotation())
add_polygon(sketch20, [(338, -21), (338, -14.00858), (336.35, -15), (336.35, -21)])  # lines 0-3
sketch20.addGeometry(Part.LineSegment(Vector(338, -14.00858, 0), Vector(338, -21, 0)), True)  # axis
sketch20.addConstraint(Sketcher.Constraint("Vertical", 0))
sketch20.addConstraint(Sketcher.Constraint("Vertical", 2))
sketch20.addConstraint(Sketcher.Constraint("Horizontal", 3))
sketch20.addConstraint(Sketcher.Constraint("Vertical", 4))
sketch20.addConstraint(Sketcher.Constraint("Coincident", 4, 1, 0, 2))
sketch20.addConstraint(Sketcher.Constraint("Horizontal", 2, 2, 4, 2))
sketch20.addConstraint(Sketcher.Constraint("DistanceY", 2, 2, 2, 1, Q("6 mm")))
sketch20.addConstraint(Sketcher.Constraint("Angle", 1, Q("-149 deg")))
sketch20.addConstraint(Sketcher.Constraint("DistanceX", -1, 1, 0, 2, Q("338 mm")))
sketch20.addConstraint(Sketcher.Constraint("DistanceY", 1, 2, -1, 1, Q("15 mm")))
sketch20.addConstraint(Sketcher.Constraint("DistanceX", 3, 1, 3, 2, Q("1.65 mm")))
groove5 = body.newObject("PartDesign::Groove", "Groove004")
groove5.Profile = sketch20
groove5.ReferenceAxis = (sketch20, ["Axis0"])
groove5.Angle = 360

# Sketch on YZ plane
sketch21 = body.newObject("Sketcher::SketchObject", "Sketch020")
sketch21.AttachmentSupport = (doc.getObject("YZ_Plane"), [""])
sketch21.MapMode = "FlatFace"
sketch21.AttachmentOffset = App.Placement(Vector(0, 0, 33.5), App.Rotation())
add_polygon(sketch21, [(338, -21), (338, -14.00858), (336.35, -15), (336.35, -21)])  # lines 0-3
sketch21.addGeometry(Part.LineSegment(Vector(338, -14.00858, 0), Vector(338, -21, 0)), True)  # axis
sketch21.addConstraint(Sketcher.Constraint("Vertical", 0))
sketch21.addConstraint(Sketcher.Constraint("Vertical", 2))
sketch21.addConstraint(Sketcher.Constraint("Horizontal", 3))
sketch21.addConstraint(Sketcher.Constraint("Vertical", 4))
sketch21.addConstraint(Sketcher.Constraint("Coincident", 4, 1, 0, 2))
sketch21.addConstraint(Sketcher.Constraint("Horizontal", 2, 2, 4, 2))
sketch21.addConstraint(Sketcher.Constraint("DistanceY", 2, 2, 2, 1, Q("6 mm")))
sketch21.addConstraint(Sketcher.Constraint("Angle", 1, Q("-149 deg")))
sketch21.addConstraint(Sketcher.Constraint("DistanceX", -1, 1, 0, 2, Q("338 mm")))
sketch21.addConstraint(Sketcher.Constraint("DistanceY", 1, 2, -1, 1, Q("15 mm")))
sketch21.addConstraint(Sketcher.Constraint("DistanceX", 3, 1, 3, 2, Q("1.65 mm")))
groove6 = body.newObject("PartDesign::Groove", "Groove005")
groove6.Profile = sketch21
groove6.ReferenceAxis = (sketch21, ["Axis0"])
groove6.Angle = 360

doc.recompute()
